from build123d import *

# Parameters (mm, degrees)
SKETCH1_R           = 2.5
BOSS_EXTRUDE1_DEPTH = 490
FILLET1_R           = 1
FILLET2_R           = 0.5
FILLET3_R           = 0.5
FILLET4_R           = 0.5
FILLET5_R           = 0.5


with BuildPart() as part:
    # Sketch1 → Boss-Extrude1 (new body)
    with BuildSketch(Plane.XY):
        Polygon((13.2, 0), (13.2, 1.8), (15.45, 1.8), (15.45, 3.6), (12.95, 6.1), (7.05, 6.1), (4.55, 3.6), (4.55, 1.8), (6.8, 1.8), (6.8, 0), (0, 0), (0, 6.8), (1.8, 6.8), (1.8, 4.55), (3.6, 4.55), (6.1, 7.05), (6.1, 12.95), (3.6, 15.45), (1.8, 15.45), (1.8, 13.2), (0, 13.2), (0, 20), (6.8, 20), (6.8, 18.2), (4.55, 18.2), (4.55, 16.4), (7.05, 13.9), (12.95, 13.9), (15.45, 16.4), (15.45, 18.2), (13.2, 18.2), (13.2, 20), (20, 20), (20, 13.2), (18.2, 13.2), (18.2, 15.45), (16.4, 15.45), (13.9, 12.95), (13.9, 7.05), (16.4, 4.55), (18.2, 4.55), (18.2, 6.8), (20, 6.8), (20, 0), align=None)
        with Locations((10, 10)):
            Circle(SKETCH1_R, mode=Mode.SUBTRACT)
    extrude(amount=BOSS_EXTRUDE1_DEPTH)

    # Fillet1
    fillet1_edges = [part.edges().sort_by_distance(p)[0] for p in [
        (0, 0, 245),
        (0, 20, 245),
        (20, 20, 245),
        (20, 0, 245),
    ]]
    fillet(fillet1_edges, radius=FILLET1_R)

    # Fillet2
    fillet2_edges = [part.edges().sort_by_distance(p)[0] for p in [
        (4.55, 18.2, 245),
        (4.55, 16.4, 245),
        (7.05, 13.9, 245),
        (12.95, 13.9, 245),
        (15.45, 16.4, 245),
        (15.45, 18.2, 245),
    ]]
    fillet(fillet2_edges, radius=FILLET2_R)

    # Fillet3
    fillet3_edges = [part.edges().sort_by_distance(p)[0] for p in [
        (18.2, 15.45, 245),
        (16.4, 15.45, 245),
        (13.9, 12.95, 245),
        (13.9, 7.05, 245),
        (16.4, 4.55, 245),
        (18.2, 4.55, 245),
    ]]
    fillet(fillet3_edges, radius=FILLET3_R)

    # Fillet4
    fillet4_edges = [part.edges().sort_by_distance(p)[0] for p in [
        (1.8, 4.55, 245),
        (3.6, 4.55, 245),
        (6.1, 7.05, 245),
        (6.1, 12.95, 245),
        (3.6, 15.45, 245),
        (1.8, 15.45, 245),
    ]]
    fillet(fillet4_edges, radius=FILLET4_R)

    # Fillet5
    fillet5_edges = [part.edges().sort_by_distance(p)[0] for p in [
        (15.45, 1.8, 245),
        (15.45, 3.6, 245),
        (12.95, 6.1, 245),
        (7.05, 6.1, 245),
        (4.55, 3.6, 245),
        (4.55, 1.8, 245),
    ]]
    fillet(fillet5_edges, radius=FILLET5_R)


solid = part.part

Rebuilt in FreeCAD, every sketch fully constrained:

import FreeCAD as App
import Part
import Sketcher
from FreeCAD import Vector


def edges_at(feature, points):
    """Names of the edges that pass closest to the given points."""
    edges = feature.Shape.Edges
    near = lambda p: min(range(len(edges)), key=lambda i: edges[i].distToShape(Part.Vertex(*p))[0])
    return sorted({f"Edge{near(p) + 1}" for p in points})

doc = App.newDocument("Part")
body = doc.addObject("PartDesign::Body", "Body")

# Sketch on XY plane
sketch1 = body.newObject("Sketcher::SketchObject", "Sketch")
sketch1.AttachmentSupport = (doc.getObject("XY_Plane"), [""])
sketch1.MapMode = "FlatFace"
sketch1.addGeometry([
    Part.LineSegment(Vector(13.2, 1.8, 0), Vector(13.2, 0, 0)),  # 0
    Part.LineSegment(Vector(13.2, 0, 0), Vector(20, 0, 0)),  # 1
    Part.LineSegment(Vector(20, 0, 0), Vector(20, 6.8, 0)),  # 2
    Part.LineSegment(Vector(20, 6.8, 0), Vector(18.2, 6.8, 0)),  # 3
    Part.LineSegment(Vector(18.2, 6.8, 0), Vector(18.2, 4.55, 0)),  # 4
    Part.LineSegment(Vector(18.2, 4.55, 0), Vector(16.4, 4.55, 0)),  # 5
    Part.LineSegment(Vector(16.4, 4.55, 0), Vector(13.9, 7.05, 0)),  # 6
    Part.LineSegment(Vector(13.9, 7.05, 0), Vector(13.9, 12.95, 0)),  # 7
    Part.LineSegment(Vector(13.9, 12.95, 0), Vector(16.4, 15.45, 0)),  # 8
    Part.LineSegment(Vector(16.4, 15.45, 0), Vector(18.2, 15.45, 0)),  # 9
    Part.LineSegment(Vector(18.2, 15.45, 0), Vector(18.2, 13.2, 0)),  # 10
    Part.LineSegment(Vector(18.2, 13.2, 0), Vector(20, 13.2, 0)),  # 11
    Part.LineSegment(Vector(20, 13.2, 0), Vector(20, 20, 0)),  # 12
    Part.LineSegment(Vector(20, 20, 0), Vector(13.2, 20, 0)),  # 13
    Part.LineSegment(Vector(13.2, 20, 0), Vector(13.2, 18.2, 0)),  # 14
    Part.LineSegment(Vector(13.2, 18.2, 0), Vector(15.45, 18.2, 0)),  # 15
    Part.LineSegment(Vector(15.45, 18.2, 0), Vector(15.45, 16.4, 0)),  # 16
    Part.LineSegment(Vector(15.45, 16.4, 0), Vector(12.95, 13.9, 0)),  # 17
    Part.LineSegment(Vector(12.95, 13.9, 0), Vector(7.05, 13.9, 0)),  # 18
    Part.LineSegment(Vector(7.05, 13.9, 0), Vector(4.55, 16.4, 0)),  # 19
    Part.LineSegment(Vector(4.55, 16.4, 0), Vector(4.55, 18.2, 0)),  # 20
    Part.LineSegment(Vector(4.55, 18.2, 0), Vector(6.8, 18.2, 0)),  # 21
    Part.LineSegment(Vector(6.8, 18.2, 0), Vector(6.8, 20, 0)),  # 22
    Part.LineSegment(Vector(6.8, 20, 0), Vector(0, 20, 0)),  # 23
    Part.LineSegment(Vector(0, 20, 0), Vector(0, 13.2, 0)),  # 24
    Part.LineSegment(Vector(0, 13.2, 0), Vector(1.8, 13.2, 0)),  # 25
    Part.LineSegment(Vector(1.8, 13.2, 0), Vector(1.8, 15.45, 0)),  # 26
    Part.LineSegment(Vector(1.8, 15.45, 0), Vector(3.6, 15.45, 0)),  # 27
    Part.LineSegment(Vector(3.6, 15.45, 0), Vector(6.1, 12.95, 0)),  # 28
    Part.LineSegment(Vector(6.1, 12.95, 0), Vector(6.1, 7.05, 0)),  # 29
    Part.LineSegment(Vector(6.1, 7.05, 0), Vector(3.6, 4.55, 0)),  # 30
    Part.LineSegment(Vector(3.6, 4.55, 0), Vector(1.8, 4.55, 0)),  # 31
    Part.LineSegment(Vector(1.8, 4.55, 0), Vector(1.8, 6.8, 0)),  # 32
    Part.LineSegment(Vector(1.8, 6.8, 0), Vector(0, 6.8, 0)),  # 33
    Part.LineSegment(Vector(0, 6.8, 0), Vector(0, 0, 0)),  # 34
    Part.LineSegment(Vector(0, 0, 0), Vector(6.8, 0, 0)),  # 35
    Part.LineSegment(Vector(6.8, 0, 0), Vector(6.8, 1.8, 0)),  # 36
    Part.LineSegment(Vector(6.8, 1.8, 0), Vector(4.55, 1.8, 0)),  # 37
    Part.LineSegment(Vector(4.55, 1.8, 0), Vector(4.55, 3.6, 0)),  # 38
    Part.LineSegment(Vector(4.55, 3.6, 0), Vector(7.05, 6.1, 0)),  # 39
    Part.LineSegment(Vector(7.05, 6.1, 0), Vector(12.95, 6.1, 0)),  # 40
    Part.LineSegment(Vector(12.95, 6.1, 0), Vector(15.45, 3.6, 0)),  # 41
    Part.LineSegment(Vector(15.45, 3.6, 0), Vector(15.45, 1.8, 0)),  # 42
    Part.LineSegment(Vector(15.45, 1.8, 0), Vector(13.2, 1.8, 0)),  # 43
    Part.Circle(Vector(10, 10, 0), Vector(0, 0, 1), 2.5),  # 44
], False)
sketch1.addConstraint([
    Sketcher.Constraint("Coincident", 0, 2, 1, 1),
    Sketcher.Constraint("Coincident", 1, 2, 2, 1),
    Sketcher.Constraint("Coincident", 2, 2, 3, 1),
    Sketcher.Constraint("Coincident", 3, 2, 4, 1),
    Sketcher.Constraint("Coincident", 4, 2, 5, 1),
    Sketcher.Constraint("Coincident", 5, 2, 6, 1),
    Sketcher.Constraint("Coincident", 6, 2, 7, 1),
    Sketcher.Constraint("Coincident", 7, 2, 8, 1),
    Sketcher.Constraint("Coincident", 8, 2, 9, 1),
    Sketcher.Constraint("Coincident", 9, 2, 10, 1),
    Sketcher.Constraint("Coincident", 10, 2, 11, 1),
    Sketcher.Constraint("Coincident", 11, 2, 12, 1),
    Sketcher.Constraint("Coincident", 12, 2, 13, 1),
    Sketcher.Constraint("Coincident", 13, 2, 14, 1),
    Sketcher.Constraint("Coincident", 14, 2, 15, 1),
    Sketcher.Constraint("Coincident", 15, 2, 16, 1),
    Sketcher.Constraint("Coincident", 16, 2, 17, 1),
    Sketcher.Constraint("Coincident", 17, 2, 18, 1),
    Sketcher.Constraint("Coincident", 18, 2, 19, 1),
    Sketcher.Constraint("Coincident", 19, 2, 20, 1),
    Sketcher.Constraint("Coincident", 20, 2, 21, 1),
    Sketcher.Constraint("Coincident", 21, 2, 22, 1),
    Sketcher.Constraint("Coincident", 22, 2, 23, 1),
    Sketcher.Constraint("Coincident", 23, 2, 24, 1),
    Sketcher.Constraint("Coincident", 24, 2, 25, 1),
    Sketcher.Constraint("Coincident", 25, 2, 26, 1),
    Sketcher.Constraint("Coincident", 26, 2, 27, 1),
    Sketcher.Constraint("Coincident", 27, 2, 28, 1),
    Sketcher.Constraint("Coincident", 28, 2, 29, 1),
    Sketcher.Constraint("Coincident", 29, 2, 30, 1),
    Sketcher.Constraint("Coincident", 30, 2, 31, 1),
    Sketcher.Constraint("Coincident", 31, 2, 32, 1),
    Sketcher.Constraint("Coincident", 32, 2, 33, 1),
    Sketcher.Constraint("Coincident", 33, 2, 34, 1),
    Sketcher.Constraint("Coincident", 34, 2, 35, 1),
    Sketcher.Constraint("Coincident", 35, 2, 36, 1),
    Sketcher.Constraint("Coincident", 36, 2, 37, 1),
    Sketcher.Constraint("Coincident", 37, 2, 38, 1),
    Sketcher.Constraint("Coincident", 38, 2, 39, 1),
    Sketcher.Constraint("Coincident", 39, 2, 40, 1),
    Sketcher.Constraint("Coincident", 40, 2, 41, 1),
    Sketcher.Constraint("Coincident", 41, 2, 42, 1),
    Sketcher.Constraint("Coincident", 42, 2, 43, 1),
    Sketcher.Constraint("Coincident", 43, 2, 0, 1),
    Sketcher.Constraint("Vertical", 0),
    Sketcher.Constraint("Horizontal", 1),
    Sketcher.Constraint("Vertical", 2),
    Sketcher.Constraint("Horizontal", 3),
    Sketcher.Constraint("Vertical", 4),
    Sketcher.Constraint("Horizontal", 5),
    Sketcher.Constraint("Vertical", 7),
    Sketcher.Constraint("Horizontal", 9),
    Sketcher.Constraint("Vertical", 10),
    Sketcher.Constraint("Horizontal", 11),
    Sketcher.Constraint("Vertical", 12),
    Sketcher.Constraint("Horizontal", 13),
    Sketcher.Constraint("Vertical", 14),
    Sketcher.Constraint("Horizontal", 15),
    Sketcher.Constraint("Vertical", 16),
    Sketcher.Constraint("Horizontal", 18),
    Sketcher.Constraint("Vertical", 20),
    Sketcher.Constraint("Horizontal", 21),
    Sketcher.Constraint("Vertical", 22),
    Sketcher.Constraint("Horizontal", 23),
    Sketcher.Constraint("Vertical", 24),
    Sketcher.Constraint("Horizontal", 25),
    Sketcher.Constraint("Vertical", 26),
    Sketcher.Constraint("Horizontal", 27),
    Sketcher.Constraint("Vertical", 29),
    Sketcher.Constraint("Horizontal", 31),
    Sketcher.Constraint("Vertical", 32),
    Sketcher.Constraint("Horizontal", 33),
    Sketcher.Constraint("Vertical", 34),
    Sketcher.Constraint("Horizontal", 35),
    Sketcher.Constraint("Vertical", 36),
    Sketcher.Constraint("Horizontal", 37),
    Sketcher.Constraint("Vertical", 38),
    Sketcher.Constraint("Horizontal", 40),
    Sketcher.Constraint("Vertical", 42),
    Sketcher.Constraint("Horizontal", 43),
    Sketcher.Constraint("Coincident", 34, 2, -1, 1),
    Sketcher.Constraint("PointOnObject", 0, 2, -1),
    Sketcher.Constraint("PointOnObject", 23, 2, -2),
    Sketcher.Constraint("Perpendicular", 6, 8),
    Sketcher.Constraint("Parallel", 8, 17),
    Sketcher.Constraint("Perpendicular", 17, 19),
    Sketcher.Constraint("Parallel", 19, 28),
    Sketcher.Constraint("Perpendicular", 28, 30),
    Sketcher.Constraint("Parallel", 30, 39),
    Sketcher.Constraint("Perpendicular", 39, 41),
    Sketcher.Constraint("Horizontal", 16, 2, 19, 2),
    Sketcher.Constraint("Horizontal", 15, 2, 20, 2),
    Sketcher.Constraint("Horizontal", 13, 2, 22, 2),
    Sketcher.Constraint("Horizontal", 11, 2, 24, 2),
    Sketcher.Constraint("Horizontal", 9, 2, 26, 2),
    Sketcher.Constraint("Horizontal", 7, 2, 28, 2),
    Sketcher.Constraint("Horizontal", 6, 2, 29, 2),
    Sketcher.Constraint("Horizontal", 5, 2, 30, 2),
    Sketcher.Constraint("Horizontal", 3, 2, 32, 2),
    Sketcher.Constraint("Horizontal", 38, 2, 41, 2),
    Sketcher.Constraint("Horizontal", 37, 2, 42, 2),
    Sketcher.Constraint("Vertical", 5, 2, 8, 2),
    Sketcher.Constraint("Vertical", 4, 2, 9, 2),
    Sketcher.Constraint("Vertical", 2, 2, 11, 2),
    Sketcher.Constraint("Vertical", 0, 2, 13, 2),
    Sketcher.Constraint("Vertical", 27, 2, 30, 2),
    Sketcher.Constraint("Vertical", 26, 2, 31, 2),
    Sketcher.Constraint("Vertical", 22, 2, 35, 2),
    Sketcher.Constraint("Vertical", 20, 2, 37, 2),
    Sketcher.Constraint("Vertical", 18, 2, 39, 2),
    Sketcher.Constraint("Vertical", 17, 2, 40, 2),
    Sketcher.Constraint("Equal", 3, 5),
    Sketcher.Constraint("Equal", 15, 21),
    Sketcher.Constraint("Equal", 13, 23),
    Sketcher.Constraint("Equal", 11, 25),
    Sketcher.Constraint("Equal", 25, 27),
    Sketcher.Constraint("Equal", 33, 0),
    Sketcher.Constraint("Equal", 35, 2),
    Sketcher.Constraint("Equal", 43, 4),
    Sketcher.Constraint("Equal", 40, 7),
    Sketcher.Constraint("Equal", 4, 10),
    Sketcher.Constraint("Equal", 2, 12),
    Sketcher.Constraint("Equal", 0, 14),
    Sketcher.Constraint("Equal", 14, 16),
    Sketcher.Constraint("Equal", 36, 38),
    Sketcher.Constraint("Equal", 8, 17),
    Sketcher.Constraint("Diameter", 44, 5.0),
    Sketcher.Constraint("DistanceX", 1, 1, 1, 2, 6.8),
    Sketcher.Constraint("DistanceX", 3, 2, 3, 1, 1.8),
    Sketcher.Constraint("DistanceX", 18, 2, 18, 1, 5.9),
    Sketcher.Constraint("DistanceX", -1, 1, 44, 3, 10.0),
    Sketcher.Constraint("DistanceY", -1, 1, 44, 3, 10.0),
    Sketcher.Constraint("DistanceX", -1, 1, 1, 2, 20.0),
    Sketcher.Constraint("DistanceX", 15, 1, 15, 2, 2.25),
])
pad1 = body.newObject("PartDesign::Pad", "Pad")
pad1.Profile = sketch1
pad1.Length = 490
doc.recompute()

fillet = body.newObject("PartDesign::Fillet", "Fillet")
fillet.Base = (pad1, edges_at(pad1, [
    (0, 0, 245),
    (0, 20, 245),
    (20, 20, 245),
    (20, 0, 245),
]))
fillet.Radius = 1
doc.recompute()

fillet2 = body.newObject("PartDesign::Fillet", "Fillet001")
fillet2.Base = (fillet, edges_at(fillet, [
    (4.55, 18.2, 245),
    (4.55, 16.4, 245),
    (7.05, 13.9, 245),
    (12.95, 13.9, 245),
    (15.45, 16.4, 245),
    (15.45, 18.2, 245),
]))
fillet2.Radius = 0.5
doc.recompute()

fillet3 = body.newObject("PartDesign::Fillet", "Fillet002")
fillet3.Base = (fillet2, edges_at(fillet2, [
    (18.2, 15.45, 245),
    (16.4, 15.45, 245),
    (13.9, 12.95, 245),
    (13.9, 7.05, 245),
    (16.4, 4.55, 245),
    (18.2, 4.55, 245),
]))
fillet3.Radius = 0.5
doc.recompute()

fillet4 = body.newObject("PartDesign::Fillet", "Fillet003")
fillet4.Base = (fillet3, edges_at(fillet3, [
    (1.8, 4.55, 245),
    (3.6, 4.55, 245),
    (6.1, 7.05, 245),
    (6.1, 12.95, 245),
    (3.6, 15.45, 245),
    (1.8, 15.45, 245),
]))
fillet4.Radius = 0.5
doc.recompute()

fillet5 = body.newObject("PartDesign::Fillet", "Fillet004")
fillet5.Base = (fillet4, edges_at(fillet4, [
    (15.45, 1.8, 245),
    (15.45, 3.6, 245),
    (12.95, 6.1, 245),
    (7.05, 6.1, 245),
    (4.55, 3.6, 245),
    (4.55, 1.8, 245),
]))
fillet5.Radius = 0.5

doc.recompute()
